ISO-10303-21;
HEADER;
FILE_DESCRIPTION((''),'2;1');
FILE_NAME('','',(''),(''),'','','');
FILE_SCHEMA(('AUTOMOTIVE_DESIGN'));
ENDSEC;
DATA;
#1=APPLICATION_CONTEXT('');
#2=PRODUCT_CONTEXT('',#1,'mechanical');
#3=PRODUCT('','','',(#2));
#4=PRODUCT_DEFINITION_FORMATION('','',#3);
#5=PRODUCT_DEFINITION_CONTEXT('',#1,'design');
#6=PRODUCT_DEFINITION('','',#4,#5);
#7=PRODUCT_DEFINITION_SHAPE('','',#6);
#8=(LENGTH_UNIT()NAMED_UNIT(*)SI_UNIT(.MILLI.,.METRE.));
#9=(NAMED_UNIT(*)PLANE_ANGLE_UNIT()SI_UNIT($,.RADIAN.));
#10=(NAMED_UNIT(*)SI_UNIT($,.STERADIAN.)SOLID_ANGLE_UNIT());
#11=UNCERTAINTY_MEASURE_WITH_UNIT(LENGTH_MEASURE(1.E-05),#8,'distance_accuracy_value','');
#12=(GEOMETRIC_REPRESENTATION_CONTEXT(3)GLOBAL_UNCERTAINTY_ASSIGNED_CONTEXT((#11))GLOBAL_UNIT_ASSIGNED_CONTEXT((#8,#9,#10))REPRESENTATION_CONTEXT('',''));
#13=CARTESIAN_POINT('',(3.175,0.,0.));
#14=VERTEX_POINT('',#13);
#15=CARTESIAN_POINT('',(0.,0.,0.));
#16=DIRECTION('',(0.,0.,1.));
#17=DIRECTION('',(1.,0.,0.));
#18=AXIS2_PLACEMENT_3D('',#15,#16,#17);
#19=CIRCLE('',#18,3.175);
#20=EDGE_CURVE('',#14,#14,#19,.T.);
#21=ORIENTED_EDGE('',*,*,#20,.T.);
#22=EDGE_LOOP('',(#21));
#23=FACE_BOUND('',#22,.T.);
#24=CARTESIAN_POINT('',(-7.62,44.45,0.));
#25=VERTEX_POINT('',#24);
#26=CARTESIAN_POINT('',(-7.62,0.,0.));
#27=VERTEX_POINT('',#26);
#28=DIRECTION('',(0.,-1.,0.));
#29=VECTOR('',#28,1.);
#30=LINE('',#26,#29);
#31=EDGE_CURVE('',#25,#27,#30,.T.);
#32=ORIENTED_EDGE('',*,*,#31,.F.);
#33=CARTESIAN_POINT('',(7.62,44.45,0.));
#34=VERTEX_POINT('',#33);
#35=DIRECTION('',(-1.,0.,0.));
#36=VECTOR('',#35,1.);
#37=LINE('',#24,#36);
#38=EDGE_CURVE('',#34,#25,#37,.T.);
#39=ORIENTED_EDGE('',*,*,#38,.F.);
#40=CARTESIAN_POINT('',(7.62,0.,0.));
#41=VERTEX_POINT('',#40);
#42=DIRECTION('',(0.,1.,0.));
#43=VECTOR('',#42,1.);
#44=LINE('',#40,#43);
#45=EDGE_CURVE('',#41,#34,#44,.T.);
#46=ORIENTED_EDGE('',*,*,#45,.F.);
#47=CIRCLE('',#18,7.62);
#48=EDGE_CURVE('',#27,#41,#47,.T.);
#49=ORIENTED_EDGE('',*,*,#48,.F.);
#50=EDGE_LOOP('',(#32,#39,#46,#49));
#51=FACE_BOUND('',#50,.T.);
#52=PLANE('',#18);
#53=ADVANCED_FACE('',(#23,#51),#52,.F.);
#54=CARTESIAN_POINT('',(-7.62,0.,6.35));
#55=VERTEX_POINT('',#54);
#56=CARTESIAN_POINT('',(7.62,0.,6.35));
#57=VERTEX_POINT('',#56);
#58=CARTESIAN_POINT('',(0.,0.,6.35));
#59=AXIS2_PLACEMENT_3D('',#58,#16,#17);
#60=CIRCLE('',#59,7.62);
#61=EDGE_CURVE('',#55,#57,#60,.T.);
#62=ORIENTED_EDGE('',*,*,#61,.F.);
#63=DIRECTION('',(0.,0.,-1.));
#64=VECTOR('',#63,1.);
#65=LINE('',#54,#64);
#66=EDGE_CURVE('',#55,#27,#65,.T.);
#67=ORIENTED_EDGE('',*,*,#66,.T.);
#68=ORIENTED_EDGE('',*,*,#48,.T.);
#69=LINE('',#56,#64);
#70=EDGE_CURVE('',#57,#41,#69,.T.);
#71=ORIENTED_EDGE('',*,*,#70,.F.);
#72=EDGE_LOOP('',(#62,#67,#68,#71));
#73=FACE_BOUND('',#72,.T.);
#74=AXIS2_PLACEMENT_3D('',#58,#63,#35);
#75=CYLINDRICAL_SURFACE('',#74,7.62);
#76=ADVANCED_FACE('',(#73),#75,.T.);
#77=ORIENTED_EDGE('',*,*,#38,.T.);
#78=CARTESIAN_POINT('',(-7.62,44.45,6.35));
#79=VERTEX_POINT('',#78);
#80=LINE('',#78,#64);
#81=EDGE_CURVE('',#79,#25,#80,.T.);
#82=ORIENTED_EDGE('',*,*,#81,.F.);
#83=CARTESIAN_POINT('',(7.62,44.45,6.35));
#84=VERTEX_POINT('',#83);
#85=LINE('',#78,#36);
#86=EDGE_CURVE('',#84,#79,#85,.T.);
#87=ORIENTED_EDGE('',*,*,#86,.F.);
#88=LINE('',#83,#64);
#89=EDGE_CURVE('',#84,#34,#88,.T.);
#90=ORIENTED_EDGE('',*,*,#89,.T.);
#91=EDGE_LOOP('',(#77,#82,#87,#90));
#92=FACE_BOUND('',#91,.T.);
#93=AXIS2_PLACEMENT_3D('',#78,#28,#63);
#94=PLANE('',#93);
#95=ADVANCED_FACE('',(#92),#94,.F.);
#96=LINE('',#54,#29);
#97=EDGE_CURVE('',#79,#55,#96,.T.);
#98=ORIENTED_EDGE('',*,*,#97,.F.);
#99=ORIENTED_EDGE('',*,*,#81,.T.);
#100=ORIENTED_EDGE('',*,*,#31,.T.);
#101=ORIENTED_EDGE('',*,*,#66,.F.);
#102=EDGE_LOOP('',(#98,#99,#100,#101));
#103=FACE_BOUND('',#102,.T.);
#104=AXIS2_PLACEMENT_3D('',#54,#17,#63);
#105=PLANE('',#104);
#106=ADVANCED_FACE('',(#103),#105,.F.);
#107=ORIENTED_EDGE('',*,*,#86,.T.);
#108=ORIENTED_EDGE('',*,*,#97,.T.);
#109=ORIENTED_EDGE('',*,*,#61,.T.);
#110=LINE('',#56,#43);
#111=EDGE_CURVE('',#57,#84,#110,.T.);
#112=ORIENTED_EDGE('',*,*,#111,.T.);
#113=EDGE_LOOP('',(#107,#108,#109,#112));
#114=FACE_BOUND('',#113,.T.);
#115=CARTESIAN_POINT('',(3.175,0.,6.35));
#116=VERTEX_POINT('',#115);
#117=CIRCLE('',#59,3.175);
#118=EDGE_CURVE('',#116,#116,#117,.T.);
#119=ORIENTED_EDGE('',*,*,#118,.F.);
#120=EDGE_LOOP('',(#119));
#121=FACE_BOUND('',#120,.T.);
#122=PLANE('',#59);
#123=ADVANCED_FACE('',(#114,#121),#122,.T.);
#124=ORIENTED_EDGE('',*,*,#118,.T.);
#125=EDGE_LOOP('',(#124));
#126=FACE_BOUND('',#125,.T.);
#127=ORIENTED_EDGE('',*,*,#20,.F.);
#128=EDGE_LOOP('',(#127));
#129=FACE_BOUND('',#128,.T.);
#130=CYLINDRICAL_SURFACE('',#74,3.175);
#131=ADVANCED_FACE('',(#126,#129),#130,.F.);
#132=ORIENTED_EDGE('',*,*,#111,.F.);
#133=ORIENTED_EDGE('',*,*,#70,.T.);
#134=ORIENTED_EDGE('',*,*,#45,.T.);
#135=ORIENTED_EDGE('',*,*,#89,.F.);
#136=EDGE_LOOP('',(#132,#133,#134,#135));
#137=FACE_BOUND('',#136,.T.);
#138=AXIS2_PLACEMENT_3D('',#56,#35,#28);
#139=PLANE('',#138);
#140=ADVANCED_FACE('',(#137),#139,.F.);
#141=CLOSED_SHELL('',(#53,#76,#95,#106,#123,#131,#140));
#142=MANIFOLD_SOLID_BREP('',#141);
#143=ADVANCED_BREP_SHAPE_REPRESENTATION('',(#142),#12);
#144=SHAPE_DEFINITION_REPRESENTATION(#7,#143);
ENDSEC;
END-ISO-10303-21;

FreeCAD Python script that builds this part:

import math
import FreeCAD as App
import Part
import Sketcher

V = App.Vector
Q = App.Units.Quantity

doc = App.newDocument("Part")
body = doc.addObject("PartDesign::Body", "Body")

sketch1 = body.newObject("Sketcher::SketchObject", "Sketch")
sketch1.AttachmentSupport = (doc.getObject("XY_Plane"), [""])
sketch1.MapMode = "FlatFace"
sketch1.addGeometry([
    Part.LineSegment(V(-7.6, 44.5, 0), V(-7.6, 0, 0)),
    Part.ArcOfCircle(Part.Circle(V(0, 0, 0), V(0, 0, 1), 7.6), math.radians(180), math.radians(360)),
    Part.LineSegment(V(7.6, 0, 0), V(7.6, 44.5, 0)),
    Part.LineSegment(V(7.6, 44.5, 0), V(-7.6, 44.5, 0)),
    Part.Circle(V(0, 0, 0), V(0, 0, 1), 3.2),
], False)
sketch1.addConstraint([
    Sketcher.Constraint("Tangent", 0, 2, 1, 1),
    Sketcher.Constraint("Tangent", 1, 2, 2, 1),
    Sketcher.Constraint("Coincident", 2, 2, 3, 1),
    Sketcher.Constraint("Coincident", 3, 2, 0, 1),
    Sketcher.Constraint("Vertical", 0),
    Sketcher.Constraint("Vertical", 2),
    Sketcher.Constraint("Horizontal", 3),
    Sketcher.Constraint("Coincident", 1, 3, -1, 1),
    Sketcher.Constraint("Coincident", 4, 3, -1, 1),
    Sketcher.Constraint("Radius", 1, Q("0.3 in")),
    Sketcher.Constraint("Diameter", 4, Q("0.25 in")),
    Sketcher.Constraint("DistanceY", 0, 2, 0, 1, Q("1.75 in")),
])
pad1 = body.newObject("PartDesign::Pad", "Pad")
pad1.Profile = sketch1
pad1.Length = Q("0.25 in")

doc.recompute()
